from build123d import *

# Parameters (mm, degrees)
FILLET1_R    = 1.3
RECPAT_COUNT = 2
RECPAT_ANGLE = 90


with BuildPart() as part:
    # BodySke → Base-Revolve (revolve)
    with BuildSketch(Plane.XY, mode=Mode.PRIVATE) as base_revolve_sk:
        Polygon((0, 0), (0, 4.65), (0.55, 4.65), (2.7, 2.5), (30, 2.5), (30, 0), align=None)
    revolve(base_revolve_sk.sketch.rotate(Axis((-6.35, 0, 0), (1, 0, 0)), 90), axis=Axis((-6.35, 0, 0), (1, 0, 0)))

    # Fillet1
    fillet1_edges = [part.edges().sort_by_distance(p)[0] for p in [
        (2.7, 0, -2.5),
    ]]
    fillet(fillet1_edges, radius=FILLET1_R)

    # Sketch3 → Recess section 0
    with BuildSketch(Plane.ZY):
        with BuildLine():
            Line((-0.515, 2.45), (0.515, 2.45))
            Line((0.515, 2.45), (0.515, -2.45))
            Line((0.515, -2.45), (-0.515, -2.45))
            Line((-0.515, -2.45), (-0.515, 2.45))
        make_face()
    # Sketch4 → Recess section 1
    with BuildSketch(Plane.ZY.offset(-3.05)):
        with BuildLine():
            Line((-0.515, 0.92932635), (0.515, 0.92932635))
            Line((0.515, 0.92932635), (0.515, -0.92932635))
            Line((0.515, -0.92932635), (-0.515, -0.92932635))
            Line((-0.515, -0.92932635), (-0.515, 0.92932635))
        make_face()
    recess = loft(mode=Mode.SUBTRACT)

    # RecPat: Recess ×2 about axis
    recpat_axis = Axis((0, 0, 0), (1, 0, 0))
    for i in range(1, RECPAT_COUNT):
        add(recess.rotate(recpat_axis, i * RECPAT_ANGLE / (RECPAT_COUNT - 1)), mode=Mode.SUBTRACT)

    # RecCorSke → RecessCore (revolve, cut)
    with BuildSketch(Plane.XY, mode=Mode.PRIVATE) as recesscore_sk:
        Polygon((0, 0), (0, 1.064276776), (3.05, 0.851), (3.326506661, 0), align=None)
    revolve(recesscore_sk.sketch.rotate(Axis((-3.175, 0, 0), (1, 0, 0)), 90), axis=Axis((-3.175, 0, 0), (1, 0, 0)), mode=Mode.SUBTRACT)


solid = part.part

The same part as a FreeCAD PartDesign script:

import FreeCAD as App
import Part
import Sketcher
Q = App.Units.Quantity


def edges_at(feature, points):
    """Names of the edges that pass closest to the given points."""
    edges = feature.Shape.Edges
    near = lambda p: min(range(len(edges)), key=lambda i: edges[i].distToShape(Part.Vertex(*p))[0])
    return sorted({f"Edge{near(p) + 1}" for p in points})

doc = App.newDocument("Part")
params = doc.addObject("Spreadsheet::Sheet", "Params")
for row, (alias, value) in enumerate([
    ("sketch1_width", "30 mm"),
    ("sketch1_width2", "27.3 mm"),
    ("sketch1_height", "2.5 mm"),
    ("sketch1_width3", "0.55 mm"),
    ("revolution_angle", "360 deg"),
    ("fillet_radius", "1.3 mm"),
    ("sketch2_width", "4.9 mm"),
    ("sketch2_height", "1.03 mm"),
    ("sketch3_height", "1.03 mm"),
    ("groove_angle", "360 deg"),
], start=1):
    params.set(f"A{row}", alias)
    params.set(f"B{row}", "=" + value)
    params.setAlias(f"B{row}", alias)

body = doc.addObject("PartDesign::Body", "Body")

# Sketch on XY plane
sketch1 = body.newObject("Sketcher::SketchObject", "Sketch")
sketch1.AttachmentSupport = (doc.getObject("XY_Plane"), [""])
sketch1.MapMode = "FlatFace"
sketch1.addGeometry([
    Part.LineSegment(App.Vector(0, 4.65, 0), App.Vector(0, 0, 0)),  # 0
    Part.LineSegment(App.Vector(0, 0, 0), App.Vector(30, 0, 0)),  # 1
    Part.LineSegment(App.Vector(30, 0, 0), App.Vector(30, 2.5, 0)),  # 2
    Part.LineSegment(App.Vector(30, 2.5, 0), App.Vector(2.7, 2.5, 0)),  # 3
    Part.LineSegment(App.Vector(2.7, 2.5, 0), App.Vector(0.55, 4.65, 0)),  # 4
    Part.LineSegment(App.Vector(0.55, 4.65, 0), App.Vector(0, 4.65, 0)),  # 5
], False)
sketch1.addConstraint([
    Sketcher.Constraint("Coincident", 0, 2, 1, 1),
    Sketcher.Constraint("Coincident", 1, 2, 2, 1),
    Sketcher.Constraint("Coincident", 2, 2, 3, 1),
    Sketcher.Constraint("Coincident", 3, 2, 4, 1),
    Sketcher.Constraint("Coincident", 4, 2, 5, 1),
    Sketcher.Constraint("Coincident", 5, 2, 0, 1),
    Sketcher.Constraint("Vertical", 0),
    Sketcher.Constraint("Horizontal", 1),
    Sketcher.Constraint("Vertical", 2),
    Sketcher.Constraint("Horizontal", 3),
    Sketcher.Constraint("Horizontal", 5),
    Sketcher.Constraint("Coincident", 0, 2, -1, 1),
    Sketcher.Constraint("DistanceX", 1, 1, 1, 2, 30.0),
    Sketcher.Constraint("Angle", 4, Q("135 deg")),
    Sketcher.Constraint("DistanceX", 3, 2, 3, 1, 27.3),
    Sketcher.Constraint("DistanceY", 2, 1, 2, 2, 2.5),
    Sketcher.Constraint("DistanceX", 5, 2, 5, 1, 0.55),
])
sketch1.setExpression("Constraints[12]", "Params.sketch1_width")
sketch1.setExpression("Constraints[14]", "Params.sketch1_width2")
sketch1.setExpression("Constraints[15]", "Params.sketch1_height")
sketch1.setExpression("Constraints[16]", "Params.sketch1_width3")
revolution = body.newObject("PartDesign::Revolution", "Revolution")
revolution.Profile = sketch1
revolution.ReferenceAxis = (sketch1, ["H_Axis"])
revolution.setExpression("Angle", "Params.revolution_angle")
doc.recompute()

fillet = body.newObject("PartDesign::Fillet", "Fillet")
fillet.Base = (revolution, edges_at(revolution, [(2.7, 0, -2.5)]))
fillet.setExpression("Radius", "Params.fillet_radius")

# Sketch on YZ plane
sketch2 = body.newObject("Sketcher::SketchObject", "Sketch001")
sketch2.AttachmentSupport = (doc.getObject("YZ_Plane"), [""])
sketch2.MapMode = "FlatFace"
sketch2.addGeometry([
    Part.LineSegment(App.Vector(2.45, 0.515, 0), App.Vector(2.45, -0.515, 0)),
    Part.LineSegment(App.Vector(2.45, -0.515, 0), App.Vector(-2.45, -0.515, 0)),
    Part.LineSegment(App.Vector(-2.45, -0.515, 0), App.Vector(-2.45, 0.515, 0)),
    Part.LineSegment(App.Vector(-2.45, 0.515, 0), App.Vector(2.45, 0.515, 0)),
], False)
sketch2.addConstraint([
    Sketcher.Constraint("Coincident", 0, 2, 1, 1),
    Sketcher.Constraint("Coincident", 1, 2, 2, 1),
    Sketcher.Constraint("Coincident", 2, 2, 3, 1),
    Sketcher.Constraint("Coincident", 3, 2, 0, 1),
    Sketcher.Constraint("Vertical", 0),
    Sketcher.Constraint("Horizontal", 1),
    Sketcher.Constraint("Vertical", 2),
    Sketcher.Constraint("Horizontal", 3),
    Sketcher.Constraint("Symmetric", 0, 2, 2, 2, -1, 1),
    Sketcher.Constraint("DistanceX", 1, 2, 1, 1, 4.9),
    Sketcher.Constraint("DistanceY", 0, 2, 0, 1, 1.03),
])
sketch2.setExpression("Constraints[9]", "Params.sketch2_width")
sketch2.setExpression("Constraints[10]", "Params.sketch2_height")

# Sketch on YZ plane
sketch3 = body.newObject("Sketcher::SketchObject", "Sketch002")
sketch3.AttachmentSupport = (doc.getObject("YZ_Plane"), [""])
sketch3.MapMode = "FlatFace"
sketch3.AttachmentOffset = App.Placement(App.Vector(0, 0, 3.05), App.Rotation())
sketch3.addGeometry([
    Part.LineSegment(App.Vector(0.929326, 0.515, 0), App.Vector(0.929326, -0.515, 0)),
    Part.LineSegment(App.Vector(0.929326, -0.515, 0), App.Vector(-0.929326, -0.515, 0)),
    Part.LineSegment(App.Vector(-0.929326, -0.515, 0), App.Vector(-0.929326, 0.515, 0)),
    Part.LineSegment(App.Vector(-0.929326, 0.515, 0), App.Vector(0.929326, 0.515, 0)),
], False)
sketch3.addConstraint([
    Sketcher.Constraint("Coincident", 0, 2, 1, 1),
    Sketcher.Constraint("Coincident", 1, 2, 2, 1),
    Sketcher.Constraint("Coincident", 2, 2, 3, 1),
    Sketcher.Constraint("Coincident", 3, 2, 0, 1),
    Sketcher.Constraint("Vertical", 0),
    Sketcher.Constraint("Horizontal", 1),
    Sketcher.Constraint("Vertical", 2),
    Sketcher.Constraint("Horizontal", 3),
    Sketcher.Constraint("Symmetric", 0, 2, 2, 2, -1, 1),
    Sketcher.Constraint("DistanceY", 0, 2, 0, 1, 1.03),
    Sketcher.Constraint("DistanceX", 1, 2, 1, 1, 1.858653),
])
sketch3.setExpression("Constraints[9]", "Params.sketch3_height")

subtractiveloft = body.newObject("PartDesign::SubtractiveLoft", "SubtractiveLoft")
subtractiveloft.Profile = sketch2
subtractiveloft.Sections = [sketch3]
doc.recompute()

polarpattern = body.newObject("PartDesign::PolarPattern", "PolarPattern")
polarpattern.Originals = [subtractiveloft]
polarpattern.Axis = (doc.getObject("X_Axis"), [""])
polarpattern.Angle = 90
polarpattern.Occurrences = 2
body.Tip = polarpattern

# Sketch on XY plane
sketch4 = body.newObject("Sketcher::SketchObject", "Sketch003")
sketch4.AttachmentSupport = (doc.getObject("XY_Plane"), [""])
sketch4.MapMode = "FlatFace"
sketch4.addGeometry([
    Part.LineSegment(App.Vector(0, 1.064277, 0), App.Vector(0, 0, 0)),
    Part.LineSegment(App.Vector(0, 0, 0), App.Vector(3.326507, 0, 0)),
    Part.LineSegment(App.Vector(3.326507, 0, 0), App.Vector(3.05, 0.851, 0)),
    Part.LineSegment(App.Vector(3.05, 0.851, 0), App.Vector(0, 1.064277, 0)),
], False)
sketch4.addConstraint([
    Sketcher.Constraint("Coincident", 0, 2, 1, 1),
    Sketcher.Constraint("Coincident", 1, 2, 2, 1),
    Sketcher.Constraint("Coincident", 2, 2, 3, 1),
    Sketcher.Constraint("Coincident", 3, 2, 0, 1),
    Sketcher.Constraint("Vertical", 0),
    Sketcher.Constraint("Horizontal", 1),
    Sketcher.Constraint("Coincident", 0, 2, -1, 1),
    Sketcher.Constraint("Angle", 2, Q("108 deg")),
    Sketcher.Constraint("Angle", 3, Q("176 deg")),
    Sketcher.Constraint("DistanceX", -1, 1, 2, 2, 3.05),
    Sketcher.Constraint("DistanceY", -1, 1, 2, 2, 0.851),
])
groove = body.newObject("PartDesign::Groove", "Groove")
groove.Profile = sketch4
groove.ReferenceAxis = (sketch4, ["H_Axis"])
groove.setExpression("Angle", "Params.groove_angle")

doc.recompute()
